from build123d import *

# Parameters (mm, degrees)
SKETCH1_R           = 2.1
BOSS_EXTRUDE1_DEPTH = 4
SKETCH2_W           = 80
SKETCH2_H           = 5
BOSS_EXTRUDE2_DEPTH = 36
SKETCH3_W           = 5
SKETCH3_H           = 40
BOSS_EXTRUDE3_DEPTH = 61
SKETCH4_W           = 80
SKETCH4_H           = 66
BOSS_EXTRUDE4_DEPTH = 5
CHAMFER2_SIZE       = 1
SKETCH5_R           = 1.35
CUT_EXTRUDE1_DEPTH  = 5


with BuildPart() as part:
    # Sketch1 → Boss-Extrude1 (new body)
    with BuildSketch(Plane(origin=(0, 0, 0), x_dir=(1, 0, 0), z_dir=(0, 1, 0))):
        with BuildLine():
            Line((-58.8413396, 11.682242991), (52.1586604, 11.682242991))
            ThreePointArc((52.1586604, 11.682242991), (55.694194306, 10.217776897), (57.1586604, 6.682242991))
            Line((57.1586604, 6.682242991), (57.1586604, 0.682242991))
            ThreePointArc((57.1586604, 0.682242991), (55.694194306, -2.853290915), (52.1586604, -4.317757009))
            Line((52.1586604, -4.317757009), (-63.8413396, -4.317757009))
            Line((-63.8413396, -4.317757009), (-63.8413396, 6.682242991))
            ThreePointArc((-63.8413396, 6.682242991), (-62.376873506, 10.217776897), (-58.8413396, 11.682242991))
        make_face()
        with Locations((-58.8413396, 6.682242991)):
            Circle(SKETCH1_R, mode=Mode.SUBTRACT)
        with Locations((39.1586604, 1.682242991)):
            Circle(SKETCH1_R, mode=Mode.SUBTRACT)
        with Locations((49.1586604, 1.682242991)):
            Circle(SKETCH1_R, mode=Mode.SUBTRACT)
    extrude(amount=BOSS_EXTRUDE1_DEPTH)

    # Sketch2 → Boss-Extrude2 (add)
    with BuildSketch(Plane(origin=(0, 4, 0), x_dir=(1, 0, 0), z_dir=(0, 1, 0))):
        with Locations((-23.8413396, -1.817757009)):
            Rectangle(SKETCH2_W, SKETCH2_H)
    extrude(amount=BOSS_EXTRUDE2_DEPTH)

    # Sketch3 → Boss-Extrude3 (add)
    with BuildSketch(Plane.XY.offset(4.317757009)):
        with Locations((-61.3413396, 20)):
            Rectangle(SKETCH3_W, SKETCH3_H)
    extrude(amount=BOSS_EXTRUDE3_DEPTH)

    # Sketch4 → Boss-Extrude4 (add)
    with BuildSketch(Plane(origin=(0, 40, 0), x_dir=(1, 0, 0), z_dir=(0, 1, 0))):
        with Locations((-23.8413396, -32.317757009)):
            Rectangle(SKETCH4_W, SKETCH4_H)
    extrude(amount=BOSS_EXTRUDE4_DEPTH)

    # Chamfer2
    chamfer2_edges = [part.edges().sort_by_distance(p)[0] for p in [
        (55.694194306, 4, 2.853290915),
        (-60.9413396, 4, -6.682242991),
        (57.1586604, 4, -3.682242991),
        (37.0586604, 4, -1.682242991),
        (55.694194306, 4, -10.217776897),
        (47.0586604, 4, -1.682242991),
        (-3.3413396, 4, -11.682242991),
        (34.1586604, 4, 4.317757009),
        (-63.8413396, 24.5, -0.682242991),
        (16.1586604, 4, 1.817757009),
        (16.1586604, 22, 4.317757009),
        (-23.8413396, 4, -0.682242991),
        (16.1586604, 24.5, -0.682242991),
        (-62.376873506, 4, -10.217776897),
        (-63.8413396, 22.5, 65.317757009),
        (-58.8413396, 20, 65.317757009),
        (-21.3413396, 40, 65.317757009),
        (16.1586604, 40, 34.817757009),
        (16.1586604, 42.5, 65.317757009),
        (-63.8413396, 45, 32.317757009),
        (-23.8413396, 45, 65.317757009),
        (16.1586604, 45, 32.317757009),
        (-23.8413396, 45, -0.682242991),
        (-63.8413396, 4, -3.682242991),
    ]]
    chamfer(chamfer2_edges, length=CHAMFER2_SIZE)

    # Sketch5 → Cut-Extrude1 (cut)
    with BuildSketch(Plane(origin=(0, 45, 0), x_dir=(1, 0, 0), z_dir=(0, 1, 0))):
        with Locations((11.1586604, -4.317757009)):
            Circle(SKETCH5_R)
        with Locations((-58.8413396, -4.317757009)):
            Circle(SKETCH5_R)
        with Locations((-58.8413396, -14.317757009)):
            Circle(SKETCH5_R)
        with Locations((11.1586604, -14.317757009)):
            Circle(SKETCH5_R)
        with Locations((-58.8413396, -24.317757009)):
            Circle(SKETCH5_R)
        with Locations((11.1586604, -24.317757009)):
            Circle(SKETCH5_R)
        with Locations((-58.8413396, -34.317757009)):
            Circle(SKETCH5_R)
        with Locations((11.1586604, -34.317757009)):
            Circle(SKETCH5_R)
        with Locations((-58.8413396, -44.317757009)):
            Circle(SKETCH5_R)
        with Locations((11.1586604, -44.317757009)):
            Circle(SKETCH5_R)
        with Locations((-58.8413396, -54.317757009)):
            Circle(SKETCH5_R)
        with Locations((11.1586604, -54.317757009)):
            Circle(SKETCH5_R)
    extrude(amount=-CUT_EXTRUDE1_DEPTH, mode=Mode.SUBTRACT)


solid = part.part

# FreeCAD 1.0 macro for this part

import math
import FreeCAD as App
import Part
import Sketcher
from FreeCAD import Vector
Q = App.Units.Quantity


def edges_at(feature, points):
    """Names of the edges that pass closest to the given points."""
    edges = feature.Shape.Edges
    near = lambda p: min(range(len(edges)), key=lambda i: edges[i].distToShape(Part.Vertex(*p))[0])
    return sorted({f"Edge{near(p) + 1}" for p in points})

doc = App.newDocument("Part")
body = doc.addObject("PartDesign::Body", "Body")

sketch1 = doc.addObject("Sketcher::SketchObject", "Sketch")
body.addObject(sketch1)
sketch1.AttachmentSupport = (doc.XZ_Plane, [""])
sketch1.MapMode = "FlatFace"
sketch1.addGeometry([
    Part.LineSegment(Vector(52.2, -11.7, 0), Vector(-58.8, -11.7, 0)),
    Part.ArcOfCircle(Part.Circle(Vector(-58.8, -6.7, 0), Vector(0, 0, 1), 5), math.radians(180), math.radians(270)),
    Part.LineSegment(Vector(-63.8, -6.7, 0), Vector(-63.8, 4.3, 0)),
    Part.LineSegment(Vector(-63.8, 4.3, 0), Vector(52.2, 4.3, 0)),
    Part.ArcOfCircle(Part.Circle(Vector(52.2, -0.7, 0), Vector(0, 0, 1), 5), math.radians(0), math.radians(90)),
    Part.LineSegment(Vector(57.2, -0.7, 0), Vector(57.2, -6.7, 0)),
    Part.ArcOfCircle(Part.Circle(Vector(52.2, -6.7, 0), Vector(0, 0, 1), 5), math.radians(-90), math.radians(0)),
    Part.Circle(Vector(49.2, -1.7, 0), Vector(0, 0, 1), 2.1),
    Part.Circle(Vector(39.2, -1.7, 0), Vector(0, 0, 1), 2.1),
    Part.Circle(Vector(-58.8, -6.7, 0), Vector(0, 0, 1), 2.1),
], False)
sketch1.addConstraint([
    Sketcher.Constraint("Tangent", 0, 2, 1, 2),
    Sketcher.Constraint("Tangent", 1, 1, 2, 1),
    Sketcher.Constraint("Coincident", 2, 2, 3, 1),
    Sketcher.Constraint("Tangent", 3, 2, 4, 2),
    Sketcher.Constraint("Tangent", 4, 1, 5, 1),
    Sketcher.Constraint("Tangent", 5, 2, 6, 2),
    Sketcher.Constraint("Tangent", 6, 1, 0, 1),
    Sketcher.Constraint("Horizontal", 0),
    Sketcher.Constraint("Vertical", 2),
    Sketcher.Constraint("Horizontal", 3),
    Sketcher.Constraint("Vertical", 5),
    Sketcher.Constraint("Coincident", 9, 3, 1, 3),
    Sketcher.Constraint("Equal", 1, 4),
    Sketcher.Constraint("Equal", 4, 6),
    Sketcher.Constraint("Equal", 7, 8),
    Sketcher.Constraint("Equal", 8, 9),
    Sketcher.Constraint("Horizontal", 7, 3, 8, 3),
    Sketcher.Constraint("Radius", 1, Q("5 mm")),
    Sketcher.Constraint("Diameter", 7, Q("4.2 mm")),
    Sketcher.Constraint("DistanceX", 0, 2, 0, 1, Q("111 mm")),
    Sketcher.Constraint("DistanceY", 2, 1, 2, 2, Q("11 mm")),
    Sketcher.Constraint("DistanceX", 7, 3, 4, 3, Q("3 mm")),
    Sketcher.Constraint("DistanceY", 7, 3, 4, 3, Q("1 mm")),
    Sketcher.Constraint("DistanceX", 8, 3, 7, 3, Q("10 mm")),
    Sketcher.Constraint("DistanceX", 1, 3, -1, 1, Q("58.84134 mm")),
    Sketcher.Constraint("DistanceY", 1, 3, -1, 1, Q("6.682243 mm")),
])
pad1 = doc.addObject("PartDesign::Pad", "Pad")
body.addObject(pad1)
pad1.Profile = sketch1
pad1.Length = 4
pad1.Reversed = True

sketch2 = doc.addObject("Sketcher::SketchObject", "Sketch001")
body.addObject(sketch2)
sketch2.AttachmentSupport = (doc.XZ_Plane, [""])
sketch2.MapMode = "FlatFace"
sketch2.AttachmentOffset = App.Placement(Vector(0, 0, -4), App.Rotation())
sketch2.addGeometry([
    Part.LineSegment(Vector(-64, -1, 0), Vector(-64, 4, 0)),
    Part.LineSegment(Vector(-64, 4, 0), Vector(16, 4, 0)),
    Part.LineSegment(Vector(16, 4, 0), Vector(16, -1, 0)),
    Part.LineSegment(Vector(16, -1, 0), Vector(-64, -1, 0)),
], False)
sketch2.addConstraint([
    Sketcher.Constraint("Coincident", 0, 2, 1, 1),
    Sketcher.Constraint("Coincident", 1, 2, 2, 1),
    Sketcher.Constraint("Coincident", 2, 2, 3, 1),
    Sketcher.Constraint("Coincident", 3, 2, 0, 1),
    Sketcher.Constraint("Vertical", 0),
    Sketcher.Constraint("Horizontal", 1),
    Sketcher.Constraint("Vertical", 2),
    Sketcher.Constraint("Horizontal", 3),
    Sketcher.Constraint("DistanceX", 1, 1, 1, 2, Q("80 mm")),
    Sketcher.Constraint("DistanceY", 0, 1, 0, 2, Q("5 mm")),
    Sketcher.Constraint("DistanceX", 0, 2, -1, 1, Q("63.84134 mm")),
    Sketcher.Constraint("DistanceY", -1, 1, 0, 2, Q("4.317757 mm")),
])
pad2 = doc.addObject("PartDesign::Pad", "Pad001")
body.addObject(pad2)
pad2.Profile = sketch2
pad2.Length = 36
pad2.Reversed = True

sketch3 = doc.addObject("Sketcher::SketchObject", "Sketch002")
body.addObject(sketch3)
sketch3.AttachmentSupport = (doc.XY_Plane, [""])
sketch3.MapMode = "FlatFace"
sketch3.AttachmentOffset = App.Placement(Vector(0, 0, 4.317757), App.Rotation())
sketch3.addGeometry([
    Part.LineSegment(Vector(-64, 40, 0), Vector(-64, 0, 0)),
    Part.LineSegment(Vector(-64, 0, 0), Vector(-59, 0, 0)),
    Part.LineSegment(Vector(-59, 0, 0), Vector(-59, 40, 0)),
    Part.LineSegment(Vector(-59, 40, 0), Vector(-64, 40, 0)),
], False)
sketch3.addConstraint([
    Sketcher.Constraint("Coincident", 0, 2, 1, 1),
    Sketcher.Constraint("Coincident", 1, 2, 2, 1),
    Sketcher.Constraint("Coincident", 2, 2, 3, 1),
    Sketcher.Constraint("Coincident", 3, 2, 0, 1),
    Sketcher.Constraint("Vertical", 0),
    Sketcher.Constraint("Horizontal", 1),
    Sketcher.Constraint("Vertical", 2),
    Sketcher.Constraint("Horizontal", 3),
    Sketcher.Constraint("PointOnObject", 0, 2, -1),
    Sketcher.Constraint("DistanceX", 1, 1, 1, 2, Q("5 mm")),
    Sketcher.Constraint("DistanceY", 0, 2, 0, 1, Q("40 mm")),
    Sketcher.Constraint("DistanceX", 0, 2, -1, 1, Q("63.84134 mm")),
])
pad3 = doc.addObject("PartDesign::Pad", "Pad002")
body.addObject(pad3)
pad3.Profile = sketch3
pad3.Length = 61

sketch4 = doc.addObject("Sketcher::SketchObject", "Sketch003")
body.addObject(sketch4)
sketch4.AttachmentSupport = (doc.XZ_Plane, [""])
sketch4.MapMode = "FlatFace"
sketch4.AttachmentOffset = App.Placement(Vector(0, 0, -40), App.Rotation())
sketch4.addGeometry([
    Part.LineSegment(Vector(-64, -1, 0), Vector(-64, 65, 0)),
    Part.LineSegment(Vector(-64, 65, 0), Vector(16, 65, 0)),
    Part.LineSegment(Vector(16, 65, 0), Vector(16, -1, 0)),
    Part.LineSegment(Vector(16, -1, 0), Vector(-64, -1, 0)),
], False)
sketch4.addConstraint([
    Sketcher.Constraint("Coincident", 0, 2, 1, 1),
    Sketcher.Constraint("Coincident", 1, 2, 2, 1),
    Sketcher.Constraint("Coincident", 2, 2, 3, 1),
    Sketcher.Constraint("Coincident", 3, 2, 0, 1),
    Sketcher.Constraint("Vertical", 0),
    Sketcher.Constraint("Horizontal", 1),
    Sketcher.Constraint("Vertical", 2),
    Sketcher.Constraint("Horizontal", 3),
    Sketcher.Constraint("DistanceX", 1, 1, 1, 2, Q("80 mm")),
    Sketcher.Constraint("DistanceY", 0, 1, 0, 2, Q("66 mm")),
    Sketcher.Constraint("DistanceX", 0, 2, -1, 1, Q("63.84134 mm")),
    Sketcher.Constraint("DistanceY", -1, 1, 0, 2, Q("65.317757 mm")),
])
pad4 = doc.addObject("PartDesign::Pad", "Pad003")
body.addObject(pad4)
pad4.Profile = sketch4
pad4.Length = 5
pad4.Reversed = True
doc.recompute()

chamfer = doc.addObject("PartDesign::Chamfer", "Chamfer")
body.addObject(chamfer)
chamfer.Base = (pad4, edges_at(pad4, [
    (55.694, 4, 2.853),
    (-60.941, 4, -6.682),
    (57.159, 4, -3.682),
    (37.059, 4, -1.682),
    (55.694, 4, -10.218),
    (47.059, 4, -1.682),
    (-3.341, 4, -11.682),
    (34.159, 4, 4.318),
    (-63.841, 24.5, -0.682),
    (16.159, 4, 1.818),
    (16.159, 22, 4.318),
    (-23.841, 4, -0.682),
    (16.159, 24.5, -0.682),
    (-62.377, 4, -10.218),
    (-63.841, 22.5, 65.318),
    (-58.841, 20, 65.318),
    (-21.341, 40, 65.318),
    (16.159, 40, 34.818),
    (16.159, 42.5, 65.318),
    (-63.841, 45, 32.318),
    (-23.841, 45, 65.318),
    (16.159, 45, 32.318),
    (-23.841, 45, -0.682),
    (-63.841, 4, -3.682),
]))
chamfer.Size = 1

sketch5 = doc.addObject("Sketcher::SketchObject", "Sketch004")
body.addObject(sketch5)
sketch5.AttachmentSupport = (doc.XZ_Plane, [""])
sketch5.MapMode = "FlatFace"
sketch5.AttachmentOffset = App.Placement(Vector(0, 0, -45), App.Rotation())
sketch5.addGeometry([
    Part.Circle(Vector(11.2, 4.3, 0), Vector(0, 0, 1), 1.4),
    Part.Circle(Vector(-58.8, 4.3, 0), Vector(0, 0, 1), 1.4),
    Part.Circle(Vector(-58.8, 14.3, 0), Vector(0, 0, 1), 1.4),
    Part.Circle(Vector(11.2, 14.3, 0), Vector(0, 0, 1), 1.4),
    Part.Circle(Vector(-58.8, 24.3, 0), Vector(0, 0, 1), 1.4),
    Part.Circle(Vector(11.2, 24.3, 0), Vector(0, 0, 1), 1.4),
    Part.Circle(Vector(-58.8, 34.3, 0), Vector(0, 0, 1), 1.4),
    Part.Circle(Vector(11.2, 34.3, 0), Vector(0, 0, 1), 1.4),
    Part.Circle(Vector(-58.8, 44.3, 0), Vector(0, 0, 1), 1.4),
    Part.Circle(Vector(11.2, 44.3, 0), Vector(0, 0, 1), 1.4),
    Part.Circle(Vector(-58.8, 54.3, 0), Vector(0, 0, 1), 1.4),
    Part.Circle(Vector(11.2, 54.3, 0), Vector(0, 0, 1), 1.4),
], False)
sketch5.addConstraint([
    Sketcher.Constraint("Equal", 0, 1),
    Sketcher.Constraint("Equal", 1, 2),
    Sketcher.Constraint("Equal", 2, 3),
    Sketcher.Constraint("Equal", 3, 4),
    Sketcher.Constraint("Equal", 4, 5),
    Sketcher.Constraint("Equal", 5, 6),
    Sketcher.Constraint("Equal", 6, 7),
    Sketcher.Constraint("Equal", 7, 8),
    Sketcher.Constraint("Equal", 8, 9),
    Sketcher.Constraint("Equal", 9, 10),
    Sketcher.Constraint("Equal", 10, 11),
    Sketcher.Constraint("Horizontal", 0, 3, 1, 3),
    Sketcher.Constraint("Horizontal", 2, 3, 3, 3),
    Sketcher.Constraint("Horizontal", 4, 3, 5, 3),
    Sketcher.Constraint("Horizontal", 6, 3, 7, 3),
    Sketcher.Constraint("Horizontal", 8, 3, 9, 3),
    Sketcher.Constraint("Horizontal", 10, 3, 11, 3),
    Sketcher.Constraint("Vertical", 1, 3, 2, 3),
    Sketcher.Constraint("Vertical", 0, 3, 3, 3),
    Sketcher.Constraint("Vertical", 2, 3, 4, 3),
    Sketcher.Constraint("Vertical", 3, 3, 5, 3),
    Sketcher.Constraint("Vertical", 4, 3, 6, 3),
    Sketcher.Constraint("Vertical", 5, 3, 7, 3),
    Sketcher.Constraint("Vertical", 6, 3, 8, 3),
    Sketcher.Constraint("Vertical", 7, 3, 9, 3),
    Sketcher.Constraint("Vertical", 8, 3, 10, 3),
    Sketcher.Constraint("Vertical", 9, 3, 11, 3),
    Sketcher.Constraint("Diameter", 0, Q("2.7 mm")),
    Sketcher.Constraint("DistanceX", 1, 3, 0, 3, Q("70 mm")),
    Sketcher.Constraint("DistanceY", 1, 3, 2, 3, Q("10 mm")),
    Sketcher.Constraint("DistanceY", 2, 3, 4, 3, Q("10 mm")),
    Sketcher.Constraint("DistanceY", 4, 3, 6, 3, Q("10 mm")),
    Sketcher.Constraint("DistanceY", 6, 3, 8, 3, Q("10 mm")),
    Sketcher.Constraint("DistanceY", 8, 3, 10, 3, Q("10 mm")),
    Sketcher.Constraint("DistanceX", -1, 1, 0, 3, Q("11.15866 mm")),
    Sketcher.Constraint("DistanceY", -1, 1, 0, 3, Q("4.317757 mm")),
])
pocket1 = doc.addObject("PartDesign::Pocket", "Pocket")
body.addObject(pocket1)
pocket1.Profile = sketch5
pocket1.Length = 5
pocket1.Reversed = True

doc.recompute()
